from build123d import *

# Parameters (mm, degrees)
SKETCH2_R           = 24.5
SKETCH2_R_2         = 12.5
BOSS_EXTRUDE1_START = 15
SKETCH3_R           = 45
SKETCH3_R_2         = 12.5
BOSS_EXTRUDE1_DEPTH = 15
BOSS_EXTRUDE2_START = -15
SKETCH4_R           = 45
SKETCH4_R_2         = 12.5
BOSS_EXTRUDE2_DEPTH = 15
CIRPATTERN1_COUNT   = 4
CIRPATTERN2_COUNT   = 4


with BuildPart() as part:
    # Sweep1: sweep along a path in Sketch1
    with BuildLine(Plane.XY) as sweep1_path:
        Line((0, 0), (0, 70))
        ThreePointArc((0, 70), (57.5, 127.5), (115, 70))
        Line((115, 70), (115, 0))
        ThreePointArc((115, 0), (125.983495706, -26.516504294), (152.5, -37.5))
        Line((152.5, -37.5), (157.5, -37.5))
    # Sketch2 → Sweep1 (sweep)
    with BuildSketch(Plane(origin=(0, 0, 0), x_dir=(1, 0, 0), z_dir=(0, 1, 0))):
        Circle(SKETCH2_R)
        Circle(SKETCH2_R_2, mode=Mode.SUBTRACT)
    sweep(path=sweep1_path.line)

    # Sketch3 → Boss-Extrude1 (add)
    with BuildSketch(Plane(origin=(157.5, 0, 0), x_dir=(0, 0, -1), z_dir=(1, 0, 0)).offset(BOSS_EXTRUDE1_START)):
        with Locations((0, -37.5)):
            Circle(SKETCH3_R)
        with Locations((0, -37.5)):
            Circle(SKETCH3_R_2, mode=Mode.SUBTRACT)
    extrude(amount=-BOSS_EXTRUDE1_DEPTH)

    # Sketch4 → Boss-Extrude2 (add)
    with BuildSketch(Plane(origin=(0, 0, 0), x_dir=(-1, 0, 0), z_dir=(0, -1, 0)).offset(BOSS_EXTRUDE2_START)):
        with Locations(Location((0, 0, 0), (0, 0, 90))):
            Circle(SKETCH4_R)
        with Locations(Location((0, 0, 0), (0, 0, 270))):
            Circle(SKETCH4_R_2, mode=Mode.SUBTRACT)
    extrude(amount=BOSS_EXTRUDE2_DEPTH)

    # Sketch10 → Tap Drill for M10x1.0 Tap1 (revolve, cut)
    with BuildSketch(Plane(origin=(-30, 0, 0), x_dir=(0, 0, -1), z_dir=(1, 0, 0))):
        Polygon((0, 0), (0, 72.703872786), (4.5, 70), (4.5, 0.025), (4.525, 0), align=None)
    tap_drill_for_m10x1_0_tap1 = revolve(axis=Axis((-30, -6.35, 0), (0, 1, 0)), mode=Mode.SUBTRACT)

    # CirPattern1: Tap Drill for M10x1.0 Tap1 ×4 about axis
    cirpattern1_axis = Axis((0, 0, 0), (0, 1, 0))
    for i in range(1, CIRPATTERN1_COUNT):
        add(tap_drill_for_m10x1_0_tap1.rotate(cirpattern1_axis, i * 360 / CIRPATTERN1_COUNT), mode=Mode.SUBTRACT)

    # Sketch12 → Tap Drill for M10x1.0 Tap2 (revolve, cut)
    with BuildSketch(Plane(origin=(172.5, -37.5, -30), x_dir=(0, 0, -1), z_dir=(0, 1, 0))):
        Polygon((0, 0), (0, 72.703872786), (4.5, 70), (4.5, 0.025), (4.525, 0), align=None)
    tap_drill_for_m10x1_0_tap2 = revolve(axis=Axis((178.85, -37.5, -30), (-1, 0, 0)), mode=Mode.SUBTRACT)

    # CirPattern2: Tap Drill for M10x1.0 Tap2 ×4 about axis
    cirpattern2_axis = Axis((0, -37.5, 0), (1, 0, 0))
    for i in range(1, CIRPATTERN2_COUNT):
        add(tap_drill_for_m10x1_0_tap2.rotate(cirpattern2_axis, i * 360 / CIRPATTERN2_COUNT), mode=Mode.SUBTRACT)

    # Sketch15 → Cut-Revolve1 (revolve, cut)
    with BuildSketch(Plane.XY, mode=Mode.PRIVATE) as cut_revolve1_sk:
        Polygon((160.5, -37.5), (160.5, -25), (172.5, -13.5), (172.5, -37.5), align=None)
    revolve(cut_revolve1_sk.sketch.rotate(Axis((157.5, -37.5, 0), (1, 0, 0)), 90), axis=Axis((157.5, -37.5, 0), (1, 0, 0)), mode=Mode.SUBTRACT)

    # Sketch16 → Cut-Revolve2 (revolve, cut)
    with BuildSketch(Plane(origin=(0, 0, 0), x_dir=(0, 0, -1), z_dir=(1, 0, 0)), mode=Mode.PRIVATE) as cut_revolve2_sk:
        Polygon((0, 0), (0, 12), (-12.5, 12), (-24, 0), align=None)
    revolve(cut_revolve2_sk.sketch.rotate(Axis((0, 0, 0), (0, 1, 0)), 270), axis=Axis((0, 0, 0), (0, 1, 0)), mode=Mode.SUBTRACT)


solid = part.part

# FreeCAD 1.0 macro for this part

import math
import FreeCAD as App
import Part
import Sketcher
from FreeCAD import Vector
Q = App.Units.Quantity

doc = App.newDocument("Part")
body = doc.addObject("PartDesign::Body", "Body")

sketch1 = doc.addObject("Sketcher::SketchObject", "Sketch")
body.addObject(sketch1)
sketch1.AttachmentSupport = (doc.XZ_Plane, [""])
sketch1.MapMode = "FlatFace"
sketch1.addGeometry([
    Part.Circle(Vector(0, 0, 0), Vector(0, 0, 1), 24.5),
    Part.Circle(Vector(0, 0, 0), Vector(0, 0, 1), 12.5),
], False)
sketch1.addConstraint([
    Sketcher.Constraint("Coincident", 0, 3, -1, 1),
    Sketcher.Constraint("Coincident", 1, 3, -1, 1),
    Sketcher.Constraint("Diameter", 0, Q("49 mm")),
    Sketcher.Constraint("Diameter", 1, Q("25 mm")),
])

sketch2 = doc.addObject("Sketcher::SketchObject", "Sketch001")
body.addObject(sketch2)
sketch2.AttachmentSupport = (doc.XY_Plane, [""])
sketch2.MapMode = "FlatFace"
sketch2.addGeometry([
    Part.LineSegment(Vector(0, 0, 0), Vector(0, 70, 0)),
    Part.ArcOfCircle(Part.Circle(Vector(57.5, 70, 0), Vector(0, 0, 1), 57.5), math.radians(0), math.radians(180)),
    Part.LineSegment(Vector(115, 70, 0), Vector(115, 0, 0)),
    Part.ArcOfCircle(Part.Circle(Vector(152.5, 0, 0), Vector(0, 0, 1), 37.5), math.radians(-180), math.radians(-90)),
    Part.LineSegment(Vector(152.5, -37.5, 0), Vector(157.5, -37.5, 0)),
], False)
sketch2.addConstraint([
    Sketcher.Constraint("Tangent", 0, 2, 1, 2),
    Sketcher.Constraint("Tangent", 1, 1, 2, 1),
    Sketcher.Constraint("Tangent", 2, 2, 3, 1),
    Sketcher.Constraint("Tangent", 3, 2, 4, 1),
    Sketcher.Constraint("Vertical", 0),
    Sketcher.Constraint("Vertical", 2),
    Sketcher.Constraint("Horizontal", 4),
    Sketcher.Constraint("Coincident", 0, 1, -1, 1),
    Sketcher.Constraint("PointOnObject", 3, 3, -1),
    Sketcher.Constraint("Radius", 1, Q("57.5 mm")),
    Sketcher.Constraint("Radius", 3, Q("37.5 mm")),
    Sketcher.Constraint("DistanceX", 4, 1, 4, 2, Q("5 mm")),
    Sketcher.Constraint("DistanceY", 0, 1, 0, 2, Q("70 mm")),
])
doc.recompute()

additivepipe = doc.addObject("PartDesign::AdditivePipe", "AdditivePipe")
body.addObject(additivepipe)
additivepipe.Profile = sketch1
additivepipe.Spine = (sketch2, ["Edge1", "Edge2", "Edge3", "Edge4", "Edge5"])

sketch3 = doc.addObject("Sketcher::SketchObject", "Sketch002")
body.addObject(sketch3)
sketch3.AttachmentSupport = (doc.YZ_Plane, [""])
sketch3.MapMode = "FlatFace"
sketch3.AttachmentOffset = App.Placement(Vector(0, 0, 172.5), App.Rotation())
sketch3.addGeometry([
    Part.Circle(Vector(-37.5, 0, 0), Vector(0, 0, 1), 45),
    Part.Circle(Vector(-37.5, 0, 0), Vector(0, 0, 1), 12.5),
], False)
sketch3.addConstraint([
    Sketcher.Constraint("Coincident", 1, 3, 0, 3),
    Sketcher.Constraint("PointOnObject", 0, 3, -1),
    Sketcher.Constraint("Diameter", 0, Q("90 mm")),
    Sketcher.Constraint("Diameter", 1, Q("25 mm")),
    Sketcher.Constraint("DistanceX", 0, 3, -1, 1, Q("37.5 mm")),
])
pad1 = doc.addObject("PartDesign::Pad", "Pad")
body.addObject(pad1)
pad1.Profile = sketch3
pad1.Length = 15
pad1.Reversed = True

sketch4 = doc.addObject("Sketcher::SketchObject", "Sketch003")
body.addObject(sketch4)
sketch4.AttachmentSupport = (doc.XZ_Plane, [""])
sketch4.MapMode = "FlatFace"
sketch4.AttachmentOffset = App.Placement(Vector(0, 0, -15), App.Rotation())
sketch4.addGeometry([
    Part.Circle(Vector(0, 0, 0), Vector(0, 0, 1), 45),
    Part.Circle(Vector(0, 0, 0), Vector(0, 0, 1), 12.5),
], False)
sketch4.addConstraint([
    Sketcher.Constraint("Coincident", 0, 3, -1, 1),
    Sketcher.Constraint("Coincident", 1, 3, -1, 1),
    Sketcher.Constraint("Diameter", 0, Q("90 mm")),
    Sketcher.Constraint("Diameter", 1, Q("25 mm")),
])
pad2 = doc.addObject("PartDesign::Pad", "Pad001")
body.addObject(pad2)
pad2.Profile = sketch4
pad2.Length = 15

sketch5 = doc.addObject("Sketcher::SketchObject", "Sketch004")
body.addObject(sketch5)
sketch5.AttachmentSupport = (doc.YZ_Plane, [""])
sketch5.MapMode = "FlatFace"
sketch5.AttachmentOffset = App.Placement(Vector(0, 0, -30), App.Rotation())
sketch5.addGeometry([
    Part.LineSegment(Vector(72.703873, 0, 0), Vector(0, 0, 0)),
    Part.LineSegment(Vector(0, 0, 0), Vector(0, -4.525, 0)),
    Part.LineSegment(Vector(0, -4.525, 0), Vector(0.025, -4.5, 0)),
    Part.LineSegment(Vector(0.025, -4.5, 0), Vector(70, -4.5, 0)),
    Part.LineSegment(Vector(70, -4.5, 0), Vector(72.703873, 0, 0)),
], False)
sketch5.addConstraint([
    Sketcher.Constraint("Coincident", 0, 2, 1, 1),
    Sketcher.Constraint("Coincident", 1, 2, 2, 1),
    Sketcher.Constraint("Coincident", 2, 2, 3, 1),
    Sketcher.Constraint("Coincident", 3, 2, 4, 1),
    Sketcher.Constraint("Coincident", 4, 2, 0, 1),
    Sketcher.Constraint("Horizontal", 0),
    Sketcher.Constraint("Vertical", 1),
    Sketcher.Constraint("Horizontal", 3),
    Sketcher.Constraint("Coincident", 0, 2, -1, 1),
    Sketcher.Constraint("Angle", 2, Q("45 deg")),
    Sketcher.Constraint("Angle", 4, Q("59 deg")),
    Sketcher.Constraint("DistanceX", -1, 1, 3, 2, Q("70 mm")),
    Sketcher.Constraint("DistanceY", 2, 2, -1, 1, Q("4.5 mm")),
    Sketcher.Constraint("DistanceX", 3, 1, 3, 2, Q("69.975 mm")),
])
groove = doc.addObject("PartDesign::Groove", "Groove")
body.addObject(groove)
groove.Profile = sketch5
groove.ReferenceAxis = (sketch5, ["H_Axis"])
groove.Angle = 360
doc.recompute()

polarpattern = doc.addObject("PartDesign::PolarPattern", "PolarPattern")
body.addObject(polarpattern)
polarpattern.Originals = [groove]
polarpattern.Axis = (doc.Y_Axis, [""])
polarpattern.Angle = 360
polarpattern.Occurrences = 4
body.Tip = polarpattern

sketch6 = doc.addObject("Sketcher::SketchObject", "Sketch005")
body.addObject(sketch6)
sketch6.AttachmentSupport = (doc.XZ_Plane, [""])
sketch6.MapMode = "FlatFace"
sketch6.AttachmentOffset = App.Placement(Vector(0, 0, 37.5), App.Rotation())
sketch6.addGeometry([
    Part.LineSegment(Vector(99.796127, -30, 0), Vector(172.5, -30, 0)),
    Part.LineSegment(Vector(172.5, -30, 0), Vector(172.5, -34.525, 0)),
    Part.LineSegment(Vector(172.5, -34.525, 0), Vector(172.475, -34.5, 0)),
    Part.LineSegment(Vector(172.475, -34.5, 0), Vector(102.5, -34.5, 0)),
    Part.LineSegment(Vector(102.5, -34.5, 0), Vector(99.796127, -30, 0)),
], False)
sketch6.addGeometry(Part.LineSegment(Vector(172.5, -30, 0), Vector(99.796127, -30, 0)), True)
sketch6.addConstraint([
    Sketcher.Constraint("Coincident", 0, 2, 1, 1),
    Sketcher.Constraint("Coincident", 1, 2, 2, 1),
    Sketcher.Constraint("Coincident", 2, 2, 3, 1),
    Sketcher.Constraint("Coincident", 3, 2, 4, 1),
    Sketcher.Constraint("Coincident", 4, 2, 0, 1),
    Sketcher.Constraint("Horizontal", 0),
    Sketcher.Constraint("Vertical", 1),
    Sketcher.Constraint("Horizontal", 3),
    Sketcher.Constraint("Horizontal", 5),
    Sketcher.Constraint("Coincident", 5, 1, 0, 2),
    Sketcher.Constraint("Equal", 0, 5),
    Sketcher.Constraint("Angle", 2, Q("135 deg")),
    Sketcher.Constraint("Angle", 4, Q("121 deg")),
    Sketcher.Constraint("DistanceY", 0, 2, -1, 1, Q("30 mm")),
    Sketcher.Constraint("DistanceX", 3, 2, 1, 2, Q("70 mm")),
    Sketcher.Constraint("DistanceX", -1, 1, 0, 2, Q("172.5 mm")),
    Sketcher.Constraint("DistanceY", 2, 2, -1, 1, Q("34.5 mm")),
    Sketcher.Constraint("DistanceX", 3, 2, 3, 1, Q("69.975 mm")),
])
groove2 = doc.addObject("PartDesign::Groove", "Groove001")
body.addObject(groove2)
groove2.Profile = sketch6
groove2.ReferenceAxis = (sketch6, ["Axis0"])
groove2.Angle = 360
doc.recompute()

datumline = doc.addObject("PartDesign::Line", "DatumLine")
body.addObject(datumline)
datumline.Placement = App.Placement(Vector(0, -37.5, 0), App.Rotation(Vector(0, 0, 1), Vector(1, 0, 0)))
polarpattern2 = doc.addObject("PartDesign::PolarPattern", "PolarPattern001")
body.addObject(polarpattern2)
polarpattern2.Originals = [groove2]
polarpattern2.Axis = (datumline, [""])
polarpattern2.Angle = 360
polarpattern2.Occurrences = 4
body.Tip = polarpattern2

sketch7 = doc.addObject("Sketcher::SketchObject", "Sketch006")
body.addObject(sketch7)
sketch7.AttachmentSupport = (doc.XY_Plane, [""])
sketch7.MapMode = "FlatFace"
sketch7.addGeometry([
    Part.LineSegment(Vector(160.5, -25, 0), Vector(160.5, -37.5, 0)),
    Part.LineSegment(Vector(160.5, -37.5, 0), Vector(172.5, -37.5, 0)),
    Part.LineSegment(Vector(172.5, -37.5, 0), Vector(172.5, -13.5, 0)),
    Part.LineSegment(Vector(172.5, -13.5, 0), Vector(160.5, -25, 0)),
], False)
sketch7.addGeometry(Part.LineSegment(Vector(160.5, -37.5, 0), Vector(172.5, -37.5, 0)), True)
sketch7.addConstraint([
    Sketcher.Constraint("Coincident", 0, 2, 1, 1),
    Sketcher.Constraint("Coincident", 1, 2, 2, 1),
    Sketcher.Constraint("Coincident", 2, 2, 3, 1),
    Sketcher.Constraint("Coincident", 3, 2, 0, 1),
    Sketcher.Constraint("Vertical", 0),
    Sketcher.Constraint("Horizontal", 1),
    Sketcher.Constraint("Vertical", 2),
    Sketcher.Constraint("Horizontal", 4),
    Sketcher.Constraint("Coincident", 4, 1, 0, 2),
    Sketcher.Constraint("Vertical", 2, 2, 4, 2),
    Sketcher.Constraint("DistanceX", 1, 1, 1, 2, Q("12 mm")),
    Sketcher.Constraint("DistanceY", 2, 1, 2, 2, Q("24 mm")),
    Sketcher.Constraint("DistanceY", 0, 2, 0, 1, Q("12.5 mm")),
    Sketcher.Constraint("DistanceY", 3, 2, -1, 1, Q("25 mm")),
    Sketcher.Constraint("DistanceX", -1, 1, 0, 2, Q("160.5 mm")),
])
groove3 = doc.addObject("PartDesign::Groove", "Groove002")
body.addObject(groove3)
groove3.Profile = sketch7
groove3.ReferenceAxis = (sketch7, ["Axis0"])
groove3.Angle = 360

sketch8 = doc.addObject("Sketcher::SketchObject", "Sketch007")
body.addObject(sketch8)
sketch8.AttachmentSupport = (doc.YZ_Plane, [""])
sketch8.MapMode = "FlatFace"
sketch8.addGeometry([
    Part.LineSegment(Vector(0, 0, 0), Vector(12, 0, 0)),
    Part.LineSegment(Vector(12, 0, 0), Vector(12, 12.5, 0)),
    Part.LineSegment(Vector(12, 12.5, 0), Vector(0, 24, 0)),
    Part.LineSegment(Vector(0, 24, 0), Vector(0, 0, 0)),
], False)
sketch8.addConstraint([
    Sketcher.Constraint("Coincident", 0, 2, 1, 1),
    Sketcher.Constraint("Coincident", 1, 2, 2, 1),
    Sketcher.Constraint("Coincident", 2, 2, 3, 1),
    Sketcher.Constraint("Coincident", 3, 2, 0, 1),
    Sketcher.Constraint("Horizontal", 0),
    Sketcher.Constraint("Vertical", 1),
    Sketcher.Constraint("Vertical", 3),
    Sketcher.Constraint("Coincident", 3, 2, -1, 1),
    Sketcher.Constraint("DistanceX", 0, 1, 0, 2, Q("12 mm")),
    Sketcher.Constraint("DistanceY", 3, 2, 3, 1, Q("24 mm")),
    Sketcher.Constraint("DistanceY", 1, 1, 1, 2, Q("12.5 mm")),
])
groove4 = doc.addObject("PartDesign::Groove", "Groove003")
body.addObject(groove4)
groove4.Profile = sketch8
groove4.ReferenceAxis = (sketch8, ["H_Axis"])
groove4.Angle = 360

doc.recompute()
